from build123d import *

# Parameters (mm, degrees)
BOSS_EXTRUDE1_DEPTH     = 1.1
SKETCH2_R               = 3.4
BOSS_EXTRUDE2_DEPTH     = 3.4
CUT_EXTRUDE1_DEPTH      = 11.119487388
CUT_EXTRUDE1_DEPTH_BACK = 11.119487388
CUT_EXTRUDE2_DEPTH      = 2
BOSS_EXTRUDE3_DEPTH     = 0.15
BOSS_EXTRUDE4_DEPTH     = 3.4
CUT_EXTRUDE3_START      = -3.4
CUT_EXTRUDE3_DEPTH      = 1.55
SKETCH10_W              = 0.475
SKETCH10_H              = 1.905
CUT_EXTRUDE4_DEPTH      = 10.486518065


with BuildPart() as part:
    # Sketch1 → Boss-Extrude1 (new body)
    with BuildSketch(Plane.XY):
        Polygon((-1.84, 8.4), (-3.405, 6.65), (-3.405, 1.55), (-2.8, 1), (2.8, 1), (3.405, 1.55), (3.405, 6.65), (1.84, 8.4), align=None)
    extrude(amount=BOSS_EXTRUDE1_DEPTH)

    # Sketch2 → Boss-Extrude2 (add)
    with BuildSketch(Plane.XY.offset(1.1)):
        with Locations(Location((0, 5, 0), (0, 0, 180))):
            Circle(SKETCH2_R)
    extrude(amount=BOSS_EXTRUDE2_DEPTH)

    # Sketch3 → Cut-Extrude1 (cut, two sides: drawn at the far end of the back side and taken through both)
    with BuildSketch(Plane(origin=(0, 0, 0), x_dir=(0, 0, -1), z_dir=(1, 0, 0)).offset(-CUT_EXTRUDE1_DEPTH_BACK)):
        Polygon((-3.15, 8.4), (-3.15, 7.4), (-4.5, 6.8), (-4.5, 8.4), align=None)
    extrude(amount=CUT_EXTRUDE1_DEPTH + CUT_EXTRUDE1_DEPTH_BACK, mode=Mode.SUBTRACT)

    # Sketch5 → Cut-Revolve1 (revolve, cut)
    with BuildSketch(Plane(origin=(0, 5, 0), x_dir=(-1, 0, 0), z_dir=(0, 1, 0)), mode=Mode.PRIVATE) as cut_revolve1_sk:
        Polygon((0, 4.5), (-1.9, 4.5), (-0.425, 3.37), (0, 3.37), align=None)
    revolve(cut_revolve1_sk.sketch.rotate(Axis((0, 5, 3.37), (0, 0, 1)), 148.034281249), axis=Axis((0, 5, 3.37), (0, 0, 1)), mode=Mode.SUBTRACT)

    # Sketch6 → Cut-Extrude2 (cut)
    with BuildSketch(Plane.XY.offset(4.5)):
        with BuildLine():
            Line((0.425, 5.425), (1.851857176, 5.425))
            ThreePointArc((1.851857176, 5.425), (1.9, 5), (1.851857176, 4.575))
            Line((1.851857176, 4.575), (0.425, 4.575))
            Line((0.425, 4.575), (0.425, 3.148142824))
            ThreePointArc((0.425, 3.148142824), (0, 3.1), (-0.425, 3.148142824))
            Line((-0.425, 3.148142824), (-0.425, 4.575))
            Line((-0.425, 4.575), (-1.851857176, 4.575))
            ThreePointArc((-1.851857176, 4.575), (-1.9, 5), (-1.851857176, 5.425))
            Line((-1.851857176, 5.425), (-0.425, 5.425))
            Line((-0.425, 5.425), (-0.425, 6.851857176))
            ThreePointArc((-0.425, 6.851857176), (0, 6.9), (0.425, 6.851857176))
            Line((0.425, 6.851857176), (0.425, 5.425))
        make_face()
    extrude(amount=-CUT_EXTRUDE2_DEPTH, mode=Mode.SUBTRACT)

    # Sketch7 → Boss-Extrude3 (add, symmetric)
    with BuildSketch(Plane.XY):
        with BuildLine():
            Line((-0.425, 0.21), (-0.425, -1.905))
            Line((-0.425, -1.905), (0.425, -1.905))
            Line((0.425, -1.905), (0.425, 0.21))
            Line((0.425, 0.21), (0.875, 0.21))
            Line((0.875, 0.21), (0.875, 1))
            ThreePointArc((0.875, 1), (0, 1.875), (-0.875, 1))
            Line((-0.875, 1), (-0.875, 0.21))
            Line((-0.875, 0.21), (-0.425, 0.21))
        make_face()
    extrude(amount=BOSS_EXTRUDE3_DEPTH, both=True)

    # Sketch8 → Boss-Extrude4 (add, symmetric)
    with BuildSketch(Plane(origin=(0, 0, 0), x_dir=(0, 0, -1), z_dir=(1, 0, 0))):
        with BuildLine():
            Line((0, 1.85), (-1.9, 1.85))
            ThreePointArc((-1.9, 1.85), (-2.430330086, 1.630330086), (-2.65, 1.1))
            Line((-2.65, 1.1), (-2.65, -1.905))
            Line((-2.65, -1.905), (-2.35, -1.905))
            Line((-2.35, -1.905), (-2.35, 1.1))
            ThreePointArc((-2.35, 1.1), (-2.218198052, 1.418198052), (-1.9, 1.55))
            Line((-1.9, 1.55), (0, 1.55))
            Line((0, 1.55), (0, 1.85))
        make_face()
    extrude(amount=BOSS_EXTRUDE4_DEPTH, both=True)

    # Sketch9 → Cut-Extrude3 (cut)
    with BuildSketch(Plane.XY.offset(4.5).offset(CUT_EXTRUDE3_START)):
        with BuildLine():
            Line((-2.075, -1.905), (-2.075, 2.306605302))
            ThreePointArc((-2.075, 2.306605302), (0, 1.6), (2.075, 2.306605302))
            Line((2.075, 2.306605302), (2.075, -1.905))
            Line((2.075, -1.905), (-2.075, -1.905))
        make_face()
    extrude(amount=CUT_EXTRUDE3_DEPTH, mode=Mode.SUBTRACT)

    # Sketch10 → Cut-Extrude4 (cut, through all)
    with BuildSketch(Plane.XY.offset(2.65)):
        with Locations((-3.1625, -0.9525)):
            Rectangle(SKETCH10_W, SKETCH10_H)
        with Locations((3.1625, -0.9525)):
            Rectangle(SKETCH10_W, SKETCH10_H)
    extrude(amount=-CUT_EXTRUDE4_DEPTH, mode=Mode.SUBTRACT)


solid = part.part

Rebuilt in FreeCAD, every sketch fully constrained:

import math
import FreeCAD as App
import Part
import Sketcher

V = App.Vector
Q = App.Units.Quantity

doc = App.newDocument("Part")
body = doc.addObject("PartDesign::Body", "Body")

sketch1 = body.newObject("Sketcher::SketchObject", "Sketch")
sketch1.AttachmentSupport = (doc.getObject("XY_Plane"), [""])
sketch1.MapMode = "FlatFace"
sketch1.addGeometry([
    Part.LineSegment(V(-1.8, 8.4, 0), V(-3.4, 6.7, 0)),
    Part.LineSegment(V(-3.4, 6.7, 0), V(-3.4, 1.6, 0)),
    Part.LineSegment(V(-3.4, 1.6, 0), V(-2.8, 1, 0)),
    Part.LineSegment(V(-2.8, 1, 0), V(2.8, 1, 0)),
    Part.LineSegment(V(2.8, 1, 0), V(3.4, 1.6, 0)),
    Part.LineSegment(V(3.4, 1.6, 0), V(3.4, 6.7, 0)),
    Part.LineSegment(V(3.4, 6.7, 0), V(1.8, 8.4, 0)),
    Part.LineSegment(V(1.8, 8.4, 0), V(-1.8, 8.4, 0)),
], False)
sketch1.addConstraint([
    Sketcher.Constraint("Coincident", 0, 2, 1, 1),
    Sketcher.Constraint("Coincident", 1, 2, 2, 1),
    Sketcher.Constraint("Coincident", 2, 2, 3, 1),
    Sketcher.Constraint("Coincident", 3, 2, 4, 1),
    Sketcher.Constraint("Coincident", 4, 2, 5, 1),
    Sketcher.Constraint("Coincident", 5, 2, 6, 1),
    Sketcher.Constraint("Coincident", 6, 2, 7, 1),
    Sketcher.Constraint("Coincident", 7, 2, 0, 1),
    Sketcher.Constraint("Vertical", 1),
    Sketcher.Constraint("Horizontal", 3),
    Sketcher.Constraint("Vertical", 5),
    Sketcher.Constraint("Horizontal", 7),
    Sketcher.Constraint("Symmetric", 1, 2, 4, 2, -2),
    Sketcher.Constraint("Horizontal", 0, 2, 5, 2),
    Sketcher.Constraint("Equal", 2, 4),
    Sketcher.Constraint("Equal", 0, 6),
    Sketcher.Constraint("DistanceX", 3, 1, 3, 2, Q("5.6 mm")),
    Sketcher.Constraint("DistanceY", 1, 2, 1, 1, Q("5.1 mm")),
    Sketcher.Constraint("DistanceY", -1, 1, 2, 2, Q("1 mm")),
    Sketcher.Constraint("DistanceX", 7, 2, 7, 1, Q("3.68 mm")),
    Sketcher.Constraint("DistanceY", -1, 1, 6, 2, Q("8.4 mm")),
    Sketcher.Constraint("DistanceY", -1, 1, 0, 2, Q("6.65 mm")),
    Sketcher.Constraint("DistanceX", 1, 2, 4, 2, Q("6.81 mm")),
])
pad1 = body.newObject("PartDesign::Pad", "Pad")
pad1.Profile = sketch1
pad1.Length = 1.1

sketch2 = body.newObject("Sketcher::SketchObject", "Sketch001")
sketch2.AttachmentSupport = (doc.getObject("XY_Plane"), [""])
sketch2.MapMode = "FlatFace"
sketch2.AttachmentOffset = App.Placement(V(0, 0, 1.1), App.Rotation())
sketch2.addGeometry(Part.Circle(V(0, 5, 0), V(0, 0, 1), 3.4), False)
sketch2.addConstraint([
    Sketcher.Constraint("PointOnObject", 0, 3, -2),
    Sketcher.Constraint("Diameter", 0, Q("6.8 mm")),
    Sketcher.Constraint("DistanceY", -1, 1, 0, 3, Q("5 mm")),
])
pad2 = body.newObject("PartDesign::Pad", "Pad001")
pad2.Profile = sketch2
pad2.Length = 3.4

sketch3 = body.newObject("Sketcher::SketchObject", "Sketch002")
sketch3.AttachmentSupport = (doc.getObject("YZ_Plane"), [""])
sketch3.MapMode = "FlatFace"
sketch3.addGeometry([
    Part.LineSegment(V(7.4, 3.1, 0), V(8.4, 3.1, 0)),
    Part.LineSegment(V(8.4, 3.1, 0), V(8.4, 4.5, 0)),
    Part.LineSegment(V(8.4, 4.5, 0), V(6.8, 4.5, 0)),
    Part.LineSegment(V(6.8, 4.5, 0), V(7.4, 3.1, 0)),
], False)
sketch3.addConstraint([
    Sketcher.Constraint("Coincident", 0, 2, 1, 1),
    Sketcher.Constraint("Coincident", 1, 2, 2, 1),
    Sketcher.Constraint("Coincident", 2, 2, 3, 1),
    Sketcher.Constraint("Coincident", 3, 2, 0, 1),
    Sketcher.Constraint("Horizontal", 0),
    Sketcher.Constraint("Vertical", 1),
    Sketcher.Constraint("Horizontal", 2),
    Sketcher.Constraint("DistanceX", 0, 1, 0, 2, Q("1 mm")),
    Sketcher.Constraint("DistanceX", 2, 2, 2, 1, Q("1.6 mm")),
    Sketcher.Constraint("DistanceY", 1, 1, 1, 2, Q("1.35 mm")),
    Sketcher.Constraint("DistanceX", -1, 1, 0, 2, Q("8.4 mm")),
    Sketcher.Constraint("DistanceY", -1, 1, 1, 2, Q("4.5 mm")),
])
pocket1 = body.newObject("PartDesign::Pocket", "Pocket")
pocket1.Profile = sketch3
pocket1.Type = "ThroughAll"
pocket1.Midplane = True

sketch4 = body.newObject("Sketcher::SketchObject", "Sketch003")
sketch4.AttachmentSupport = (doc.getObject("XZ_Plane"), [""])
sketch4.MapMode = "FlatFace"
sketch4.AttachmentOffset = App.Placement(V(0, 0, -5), App.Rotation())
sketch4.addGeometry([
    Part.LineSegment(V(0, 4.5, 0), V(1.9, 4.5, 0)),
    Part.LineSegment(V(1.9, 4.5, 0), V(0.42, 3.37, 0)),
    Part.LineSegment(V(0.42, 3.37, 0), V(0, 3.37, 0)),
    Part.LineSegment(V(0, 3.37, 0), V(0, 4.5, 0)),
], False)
sketch4.addConstraint([
    Sketcher.Constraint("Coincident", 0, 2, 1, 1),
    Sketcher.Constraint("Coincident", 1, 2, 2, 1),
    Sketcher.Constraint("Coincident", 2, 2, 3, 1),
    Sketcher.Constraint("Coincident", 3, 2, 0, 1),
    Sketcher.Constraint("Horizontal", 0),
    Sketcher.Constraint("Horizontal", 2),
    Sketcher.Constraint("Vertical", 3),
    Sketcher.Constraint("PointOnObject", 2, 2, -2),
    Sketcher.Constraint("DistanceX", 0, 1, 0, 2, Q("1.9 mm")),
    Sketcher.Constraint("DistanceY", 3, 1, 3, 2, Q("1.13 mm")),
    Sketcher.Constraint("DistanceY", -1, 1, 0, 2, Q("4.5 mm")),
    Sketcher.Constraint("DistanceX", 2, 2, 2, 1, Q("0.425 mm")),
])
groove = body.newObject("PartDesign::Groove", "Groove")
groove.Profile = sketch4
groove.ReferenceAxis = (sketch4, ["V_Axis"])
groove.Angle = 360

sketch5 = body.newObject("Sketcher::SketchObject", "Sketch004")
sketch5.AttachmentSupport = (doc.getObject("XY_Plane"), [""])
sketch5.MapMode = "FlatFace"
sketch5.AttachmentOffset = App.Placement(V(0, 0, 4.5), App.Rotation())
sketch5.addGeometry([
    Part.LineSegment(V(1.9, 5.4, 0), V(0.4, 5.4, 0)),
    Part.LineSegment(V(0.4, 5.4, 0), V(0.4, 6.9, 0)),
    Part.ArcOfCircle(Part.Circle(V(0, 5, 0), V(0, 0, 1), 1.9), math.radians(77), math.radians(103)),
    Part.LineSegment(V(-0.4, 6.9, 0), V(-0.4, 5.4, 0)),
    Part.LineSegment(V(-0.4, 5.4, 0), V(-1.9, 5.4, 0)),
    Part.ArcOfCircle(Part.Circle(V(0, 5, 0), V(0, 0, 1), 1.9), math.radians(167), math.radians(193)),
    Part.LineSegment(V(-1.9, 4.6, 0), V(-0.4, 4.6, 0)),
    Part.LineSegment(V(-0.4, 4.6, 0), V(-0.4, 3.1, 0)),
    Part.ArcOfCircle(Part.Circle(V(0, 5, 0), V(0, 0, 1), 1.9), math.radians(-103), math.radians(-77)),
    Part.LineSegment(V(0.4, 3.1, 0), V(0.4, 4.6, 0)),
    Part.LineSegment(V(0.4, 4.6, 0), V(1.9, 4.6, 0)),
    Part.ArcOfCircle(Part.Circle(V(0, 5, 0), V(0, 0, 1), 1.9), math.radians(-13), math.radians(13)),
], False)
sketch5.addConstraint([
    Sketcher.Constraint("Coincident", 0, 2, 1, 1),
    Sketcher.Constraint("Coincident", 1, 2, 2, 1),
    Sketcher.Constraint("Coincident", 2, 2, 3, 1),
    Sketcher.Constraint("Coincident", 3, 2, 4, 1),
    Sketcher.Constraint("Coincident", 4, 2, 5, 1),
    Sketcher.Constraint("Coincident", 5, 2, 6, 1),
    Sketcher.Constraint("Coincident", 6, 2, 7, 1),
    Sketcher.Constraint("Coincident", 7, 2, 8, 1),
    Sketcher.Constraint("Coincident", 8, 2, 9, 1),
    Sketcher.Constraint("Coincident", 9, 2, 10, 1),
    Sketcher.Constraint("Coincident", 10, 2, 11, 1),
    Sketcher.Constraint("Coincident", 11, 2, 0, 1),
    Sketcher.Constraint("Horizontal", 0),
    Sketcher.Constraint("Vertical", 1),
    Sketcher.Constraint("Vertical", 3),
    Sketcher.Constraint("Horizontal", 4),
    Sketcher.Constraint("Horizontal", 6),
    Sketcher.Constraint("Vertical", 7),
    Sketcher.Constraint("Vertical", 9),
    Sketcher.Constraint("Horizontal", 10),
    Sketcher.Constraint("Coincident", 5, 3, 2, 3),
    Sketcher.Constraint("Coincident", 8, 3, 2, 3),
    Sketcher.Constraint("Coincident", 11, 3, 2, 3),
    Sketcher.Constraint("Equal", 2, 5),
    Sketcher.Constraint("Equal", 5, 8),
    Sketcher.Constraint("Equal", 8, 11),
    Sketcher.Constraint("Symmetric", 1, 2, 2, 2, -2),
    Sketcher.Constraint("Symmetric", 6, 2, 9, 2, -2),
    Sketcher.Constraint("Horizontal", 0, 2, 3, 2),
    Sketcher.Constraint("Vertical", 4, 2, 5, 2),
    Sketcher.Constraint("Vertical", 3, 2, 6, 2),
    Sketcher.Constraint("Equal", 10, 1),
    Sketcher.Constraint("Radius", 2, Q("1.9 mm")),
    Sketcher.Constraint("DistanceY", -1, 1, 2, 3, Q("5 mm")),
    Sketcher.Constraint("DistanceX", 2, 2, 1, 2, Q("0.85 mm")),
])
pocket2 = body.newObject("PartDesign::Pocket", "Pocket001")
pocket2.Profile = sketch5
pocket2.Length = 2

sketch6 = body.newObject("Sketcher::SketchObject", "Sketch005")
sketch6.AttachmentSupport = (doc.getObject("XY_Plane"), [""])
sketch6.MapMode = "FlatFace"
sketch6.addGeometry([
    Part.LineSegment(V(-0.42, 0.21, 0), V(-0.42, -1.91, 0)),
    Part.LineSegment(V(-0.42, -1.91, 0), V(0.42, -1.91, 0)),
    Part.LineSegment(V(0.42, -1.91, 0), V(0.42, 0.21, 0)),
    Part.LineSegment(V(0.42, 0.21, 0), V(0.88, 0.21, 0)),
    Part.LineSegment(V(0.88, 0.21, 0), V(0.88, 1, 0)),
    Part.ArcOfCircle(Part.Circle(V(0, 1, 0), V(0, 0, 1), 0.88), math.radians(0), math.radians(180)),
    Part.LineSegment(V(-0.88, 1, 0), V(-0.88, 0.21, 0)),
    Part.LineSegment(V(-0.88, 0.21, 0), V(-0.42, 0.21, 0)),
], False)
sketch6.addConstraint([
    Sketcher.Constraint("Coincident", 0, 2, 1, 1),
    Sketcher.Constraint("Coincident", 1, 2, 2, 1),
    Sketcher.Constraint("Coincident", 2, 2, 3, 1),
    Sketcher.Constraint("Coincident", 3, 2, 4, 1),
    Sketcher.Constraint("Tangent", 4, 2, 5, 1),
    Sketcher.Constraint("Tangent", 5, 2, 6, 1),
    Sketcher.Constraint("Coincident", 6, 2, 7, 1),
    Sketcher.Constraint("Coincident", 7, 2, 0, 1),
    Sketcher.Constraint("Vertical", 0),
    Sketcher.Constraint("Horizontal", 1),
    Sketcher.Constraint("Vertical", 2),
    Sketcher.Constraint("Horizontal", 3),
    Sketcher.Constraint("Vertical", 4),
    Sketcher.Constraint("Vertical", 6),
    Sketcher.Constraint("Horizontal", 7),
    Sketcher.Constraint("Symmetric", 3, 2, 6, 2, -2),
    Sketcher.Constraint("Equal", 3, 7),
    Sketcher.Constraint("DistanceY", -1, 1, 5, 3, Q("1 mm")),
    Sketcher.Constraint("Radius", 5, Q("0.875 mm")),
    Sketcher.Constraint("DistanceX", 1, 1, 1, 2, Q("0.85 mm")),
    Sketcher.Constraint("DistanceY", 4, 1, 4, 2, Q("0.79 mm")),
    Sketcher.Constraint("DistanceY", 0, 2, 0, 1, Q("2.115 mm")),
])
pad3 = body.newObject("PartDesign::Pad", "Pad002")
pad3.Profile = sketch6
pad3.Length = 0.3
pad3.Midplane = True

sketch7 = body.newObject("Sketcher::SketchObject", "Sketch006")
sketch7.AttachmentSupport = (doc.getObject("YZ_Plane"), [""])
sketch7.MapMode = "FlatFace"
sketch7.addGeometry([
    Part.LineSegment(V(1.85, 0, 0), V(1.85, 1.9, 0)),
    Part.ArcOfCircle(Part.Circle(V(1.1, 1.9, 0), V(0, 0, 1), 0.75), math.radians(0), math.radians(90)),
    Part.LineSegment(V(1.1, 2.65, 0), V(-1.91, 2.65, 0)),
    Part.LineSegment(V(-1.91, 2.65, 0), V(-1.91, 2.35, 0)),
    Part.LineSegment(V(-1.91, 2.35, 0), V(1.1, 2.35, 0)),
    Part.ArcOfCircle(Part.Circle(V(1.1, 1.9, 0), V(0, 0, 1), 0.45), math.radians(0), math.radians(90)),
    Part.LineSegment(V(1.55, 1.9, 0), V(1.55, 0, 0)),
    Part.LineSegment(V(1.55, 0, 0), V(1.85, 0, 0)),
], False)
sketch7.addConstraint([
    Sketcher.Constraint("Tangent", 0, 2, 1, 1),
    Sketcher.Constraint("Tangent", 1, 2, 2, 1),
    Sketcher.Constraint("Coincident", 2, 2, 3, 1),
    Sketcher.Constraint("Coincident", 3, 2, 4, 1),
    Sketcher.Constraint("Tangent", 4, 2, 5, 2),
    Sketcher.Constraint("Tangent", 5, 1, 6, 1),
    Sketcher.Constraint("Coincident", 6, 2, 7, 1),
    Sketcher.Constraint("Coincident", 7, 2, 0, 1),
    Sketcher.Constraint("Vertical", 0),
    Sketcher.Constraint("Horizontal", 2),
    Sketcher.Constraint("Vertical", 3),
    Sketcher.Constraint("Horizontal", 4),
    Sketcher.Constraint("Vertical", 6),
    Sketcher.Constraint("Horizontal", 7),
    Sketcher.Constraint("Coincident", 5, 3, 1, 3),
    Sketcher.Constraint("PointOnObject", 6, 2, -1),
    Sketcher.Constraint("Radius", 1, Q("0.75 mm")),
    Sketcher.Constraint("Radius", 5, Q("0.45 mm")),
    Sketcher.Constraint("DistanceY", 0, 1, 0, 2, Q("1.9 mm")),
    Sketcher.Constraint("DistanceX", -1, 1, 1, 3, Q("1.1 mm")),
    Sketcher.Constraint("DistanceX", 2, 2, 2, 1, Q("3.005 mm")),
])
pad4 = body.newObject("PartDesign::Pad", "Pad003")
pad4.Profile = sketch7
pad4.Length = 6.8
pad4.Midplane = True

sketch8 = body.newObject("Sketcher::SketchObject", "Sketch007")
sketch8.AttachmentSupport = (doc.getObject("XY_Plane"), [""])
sketch8.MapMode = "FlatFace"
sketch8.AttachmentOffset = App.Placement(V(0, 0, 1.1), App.Rotation())
sketch8.addGeometry([
    Part.LineSegment(V(-2.1, 2.3, 0), V(-2.1, -1.9, 0)),
    Part.LineSegment(V(-2.1, -1.9, 0), V(2.1, -1.9, 0)),
    Part.LineSegment(V(2.1, -1.9, 0), V(2.1, 2.3, 0)),
    Part.ArcOfCircle(Part.Circle(V(0, 5, 0), V(0, 0, 1), 3.4), math.radians(-128), math.radians(-52)),
], False)
sketch8.addConstraint([
    Sketcher.Constraint("Coincident", 0, 2, 1, 1),
    Sketcher.Constraint("Coincident", 1, 2, 2, 1),
    Sketcher.Constraint("Coincident", 2, 2, 3, 2),
    Sketcher.Constraint("Coincident", 3, 1, 0, 1),
    Sketcher.Constraint("Vertical", 0),
    Sketcher.Constraint("Horizontal", 1),
    Sketcher.Constraint("Vertical", 2),
    Sketcher.Constraint("Symmetric", 2, 2, 3, 1, -2),
    Sketcher.Constraint("Radius", 3, Q("3.4 mm")),
    Sketcher.Constraint("DistanceY", -1, 1, 3, 3, Q("5 mm")),
    Sketcher.Constraint("DistanceX", 1, 1, 1, 2, Q("4.15 mm")),
    Sketcher.Constraint("DistanceY", 0, 2, -1, 1, Q("1.905 mm")),
])
pocket3 = body.newObject("PartDesign::Pocket", "Pocket002")
pocket3.Profile = sketch8
pocket3.Length = 1.55
pocket3.Reversed = True

sketch9 = body.newObject("Sketcher::SketchObject", "Sketch008")
sketch9.AttachmentSupport = (doc.getObject("XY_Plane"), [""])
sketch9.MapMode = "FlatFace"
sketch9.AttachmentOffset = App.Placement(V(0, 0, 2.65), App.Rotation())
sketch9.addGeometry([
    Part.LineSegment(V(-3.4, 0, 0), V(-3.4, -1.91, 0)),
    Part.LineSegment(V(-3.4, -1.91, 0), V(-2.92, -1.91, 0)),
    Part.LineSegment(V(-2.92, -1.91, 0), V(-2.92, 0, 0)),
    Part.LineSegment(V(-2.92, 0, 0), V(-3.4, 0, 0)),
    Part.LineSegment(V(2.92, 0, 0), V(2.92, -1.91, 0)),
    Part.LineSegment(V(2.92, -1.91, 0), V(3.4, -1.91, 0)),
    Part.LineSegment(V(3.4, -1.91, 0), V(3.4, 0, 0)),
    Part.LineSegment(V(3.4, 0, 0), V(2.92, 0, 0)),
], False)
sketch9.addConstraint([
    Sketcher.Constraint("Coincident", 0, 2, 1, 1),
    Sketcher.Constraint("Coincident", 1, 2, 2, 1),
    Sketcher.Constraint("Coincident", 2, 2, 3, 1),
    Sketcher.Constraint("Coincident", 3, 2, 0, 1),
    Sketcher.Constraint("Coincident", 4, 2, 5, 1),
    Sketcher.Constraint("Coincident", 5, 2, 6, 1),
    Sketcher.Constraint("Coincident", 6, 2, 7, 1),
    Sketcher.Constraint("Coincident", 7, 2, 4, 1),
    Sketcher.Constraint("Vertical", 0),
    Sketcher.Constraint("Horizontal", 1),
    Sketcher.Constraint("Vertical", 2),
    Sketcher.Constraint("Horizontal", 3),
    Sketcher.Constraint("Vertical", 4),
    Sketcher.Constraint("Horizontal", 5),
    Sketcher.Constraint("Vertical", 6),
    Sketcher.Constraint("Horizontal", 7),
    Sketcher.Constraint("Symmetric", 3, 2, 6, 2, -1, 1),
    Sketcher.Constraint("Symmetric", 1, 2, 4, 2, -2),
    Sketcher.Constraint("PointOnObject", 2, 2, -1),
    Sketcher.Constraint("DistanceX", 0, 2, -1, 1, Q("3.4 mm")),
    Sketcher.Constraint("DistanceX", 1, 1, 1, 2, Q("0.475 mm")),
    Sketcher.Constraint("DistanceY", 0, 2, 0, 1, Q("1.905 mm")),
])
pocket4 = body.newObject("PartDesign::Pocket", "Pocket003")
pocket4.Profile = sketch9
pocket4.Type = "ThroughAll"

doc.recompute()
